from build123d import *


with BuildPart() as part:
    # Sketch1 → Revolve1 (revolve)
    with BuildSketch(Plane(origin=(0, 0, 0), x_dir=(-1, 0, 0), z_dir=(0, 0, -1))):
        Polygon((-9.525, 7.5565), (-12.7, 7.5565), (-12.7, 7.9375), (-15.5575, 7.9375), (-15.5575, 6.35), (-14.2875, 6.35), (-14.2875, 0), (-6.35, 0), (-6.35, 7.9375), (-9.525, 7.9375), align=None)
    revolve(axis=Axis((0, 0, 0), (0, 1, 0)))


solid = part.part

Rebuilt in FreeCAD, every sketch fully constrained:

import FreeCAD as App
import Part
import Sketcher
Q = App.Units.Quantity


def add_polygon(sketch, points):
    """Adds a closed chain of lines whose ends are joined by coincident constraints."""
    first, n = sketch.GeometryCount, len(points)
    for a, b in zip(points, points[1:] + points[:1]):
        sketch.addGeometry(Part.LineSegment(App.Vector(*a, 0), App.Vector(*b, 0)), False)
    for i in range(n):
        sketch.addConstraint(Sketcher.Constraint("Coincident", first + i, 2, first + (i + 1) % n, 1))

doc = App.newDocument("Part")
body = doc.addObject("PartDesign::Body", "Body")

# Sketch on XY plane
sketch1 = body.newObject("Sketcher::SketchObject", "Sketch")
sketch1.AttachmentSupport = (doc.getObject("XY_Plane"), [""])
sketch1.MapMode = "FlatFace"
add_polygon(sketch1, [(9.53, 7.56), (12.7, 7.56), (12.7, 7.94), (15.56, 7.94), (15.56, 6.35), (14.29, 6.35), (14.29, 0), (6.35, 0), (6.35, 7.94), (9.53, 7.94)])  # lines 0-9
sketch1.addConstraint(Sketcher.Constraint("Horizontal", 0))
sketch1.addConstraint(Sketcher.Constraint("Vertical", 1))
sketch1.addConstraint(Sketcher.Constraint("Horizontal", 2))
sketch1.addConstraint(Sketcher.Constraint("Vertical", 3))
sketch1.addConstraint(Sketcher.Constraint("Horizontal", 4))
sketch1.addConstraint(Sketcher.Constraint("Vertical", 5))
sketch1.addConstraint(Sketcher.Constraint("Horizontal", 6))
sketch1.addConstraint(Sketcher.Constraint("Vertical", 7))
sketch1.addConstraint(Sketcher.Constraint("Horizontal", 8))
sketch1.addConstraint(Sketcher.Constraint("Vertical", 9))
sketch1.addConstraint(Sketcher.Constraint("PointOnObject", 5, 2, -1))
sketch1.addConstraint(Sketcher.Constraint("Horizontal", 2, 2, 7, 2))
sketch1.addConstraint(Sketcher.Constraint("Equal", 0, 8))
sketch1.addConstraint(Sketcher.Constraint("Equal", 6, 7))
sketch1.addConstraint(Sketcher.Constraint("DistanceX", 4, 2, 4, 1, Q("0.05 in")))
sketch1.addConstraint(Sketcher.Constraint("DistanceY", 5, 2, 5, 1, Q("0.25 in")))
sketch1.addConstraint(Sketcher.Constraint("DistanceX", -1, 1, 0, 2, Q("0.5 in")))
sketch1.addConstraint(Sketcher.Constraint("DistanceX", 0, 1, 0, 2, Q("0.125 in")))
sketch1.addConstraint(Sketcher.Constraint("DistanceX", 6, 2, 6, 1, Q("0.3125 in")))
sketch1.addConstraint(Sketcher.Constraint("DistanceY", 1, 1, 1, 2, Q("0.015 in")))
revolution = body.newObject("PartDesign::Revolution", "Revolution")
revolution.Profile = sketch1
revolution.ReferenceAxis = (sketch1, ["V_Axis"])
revolution.Angle = 360

doc.recompute()
